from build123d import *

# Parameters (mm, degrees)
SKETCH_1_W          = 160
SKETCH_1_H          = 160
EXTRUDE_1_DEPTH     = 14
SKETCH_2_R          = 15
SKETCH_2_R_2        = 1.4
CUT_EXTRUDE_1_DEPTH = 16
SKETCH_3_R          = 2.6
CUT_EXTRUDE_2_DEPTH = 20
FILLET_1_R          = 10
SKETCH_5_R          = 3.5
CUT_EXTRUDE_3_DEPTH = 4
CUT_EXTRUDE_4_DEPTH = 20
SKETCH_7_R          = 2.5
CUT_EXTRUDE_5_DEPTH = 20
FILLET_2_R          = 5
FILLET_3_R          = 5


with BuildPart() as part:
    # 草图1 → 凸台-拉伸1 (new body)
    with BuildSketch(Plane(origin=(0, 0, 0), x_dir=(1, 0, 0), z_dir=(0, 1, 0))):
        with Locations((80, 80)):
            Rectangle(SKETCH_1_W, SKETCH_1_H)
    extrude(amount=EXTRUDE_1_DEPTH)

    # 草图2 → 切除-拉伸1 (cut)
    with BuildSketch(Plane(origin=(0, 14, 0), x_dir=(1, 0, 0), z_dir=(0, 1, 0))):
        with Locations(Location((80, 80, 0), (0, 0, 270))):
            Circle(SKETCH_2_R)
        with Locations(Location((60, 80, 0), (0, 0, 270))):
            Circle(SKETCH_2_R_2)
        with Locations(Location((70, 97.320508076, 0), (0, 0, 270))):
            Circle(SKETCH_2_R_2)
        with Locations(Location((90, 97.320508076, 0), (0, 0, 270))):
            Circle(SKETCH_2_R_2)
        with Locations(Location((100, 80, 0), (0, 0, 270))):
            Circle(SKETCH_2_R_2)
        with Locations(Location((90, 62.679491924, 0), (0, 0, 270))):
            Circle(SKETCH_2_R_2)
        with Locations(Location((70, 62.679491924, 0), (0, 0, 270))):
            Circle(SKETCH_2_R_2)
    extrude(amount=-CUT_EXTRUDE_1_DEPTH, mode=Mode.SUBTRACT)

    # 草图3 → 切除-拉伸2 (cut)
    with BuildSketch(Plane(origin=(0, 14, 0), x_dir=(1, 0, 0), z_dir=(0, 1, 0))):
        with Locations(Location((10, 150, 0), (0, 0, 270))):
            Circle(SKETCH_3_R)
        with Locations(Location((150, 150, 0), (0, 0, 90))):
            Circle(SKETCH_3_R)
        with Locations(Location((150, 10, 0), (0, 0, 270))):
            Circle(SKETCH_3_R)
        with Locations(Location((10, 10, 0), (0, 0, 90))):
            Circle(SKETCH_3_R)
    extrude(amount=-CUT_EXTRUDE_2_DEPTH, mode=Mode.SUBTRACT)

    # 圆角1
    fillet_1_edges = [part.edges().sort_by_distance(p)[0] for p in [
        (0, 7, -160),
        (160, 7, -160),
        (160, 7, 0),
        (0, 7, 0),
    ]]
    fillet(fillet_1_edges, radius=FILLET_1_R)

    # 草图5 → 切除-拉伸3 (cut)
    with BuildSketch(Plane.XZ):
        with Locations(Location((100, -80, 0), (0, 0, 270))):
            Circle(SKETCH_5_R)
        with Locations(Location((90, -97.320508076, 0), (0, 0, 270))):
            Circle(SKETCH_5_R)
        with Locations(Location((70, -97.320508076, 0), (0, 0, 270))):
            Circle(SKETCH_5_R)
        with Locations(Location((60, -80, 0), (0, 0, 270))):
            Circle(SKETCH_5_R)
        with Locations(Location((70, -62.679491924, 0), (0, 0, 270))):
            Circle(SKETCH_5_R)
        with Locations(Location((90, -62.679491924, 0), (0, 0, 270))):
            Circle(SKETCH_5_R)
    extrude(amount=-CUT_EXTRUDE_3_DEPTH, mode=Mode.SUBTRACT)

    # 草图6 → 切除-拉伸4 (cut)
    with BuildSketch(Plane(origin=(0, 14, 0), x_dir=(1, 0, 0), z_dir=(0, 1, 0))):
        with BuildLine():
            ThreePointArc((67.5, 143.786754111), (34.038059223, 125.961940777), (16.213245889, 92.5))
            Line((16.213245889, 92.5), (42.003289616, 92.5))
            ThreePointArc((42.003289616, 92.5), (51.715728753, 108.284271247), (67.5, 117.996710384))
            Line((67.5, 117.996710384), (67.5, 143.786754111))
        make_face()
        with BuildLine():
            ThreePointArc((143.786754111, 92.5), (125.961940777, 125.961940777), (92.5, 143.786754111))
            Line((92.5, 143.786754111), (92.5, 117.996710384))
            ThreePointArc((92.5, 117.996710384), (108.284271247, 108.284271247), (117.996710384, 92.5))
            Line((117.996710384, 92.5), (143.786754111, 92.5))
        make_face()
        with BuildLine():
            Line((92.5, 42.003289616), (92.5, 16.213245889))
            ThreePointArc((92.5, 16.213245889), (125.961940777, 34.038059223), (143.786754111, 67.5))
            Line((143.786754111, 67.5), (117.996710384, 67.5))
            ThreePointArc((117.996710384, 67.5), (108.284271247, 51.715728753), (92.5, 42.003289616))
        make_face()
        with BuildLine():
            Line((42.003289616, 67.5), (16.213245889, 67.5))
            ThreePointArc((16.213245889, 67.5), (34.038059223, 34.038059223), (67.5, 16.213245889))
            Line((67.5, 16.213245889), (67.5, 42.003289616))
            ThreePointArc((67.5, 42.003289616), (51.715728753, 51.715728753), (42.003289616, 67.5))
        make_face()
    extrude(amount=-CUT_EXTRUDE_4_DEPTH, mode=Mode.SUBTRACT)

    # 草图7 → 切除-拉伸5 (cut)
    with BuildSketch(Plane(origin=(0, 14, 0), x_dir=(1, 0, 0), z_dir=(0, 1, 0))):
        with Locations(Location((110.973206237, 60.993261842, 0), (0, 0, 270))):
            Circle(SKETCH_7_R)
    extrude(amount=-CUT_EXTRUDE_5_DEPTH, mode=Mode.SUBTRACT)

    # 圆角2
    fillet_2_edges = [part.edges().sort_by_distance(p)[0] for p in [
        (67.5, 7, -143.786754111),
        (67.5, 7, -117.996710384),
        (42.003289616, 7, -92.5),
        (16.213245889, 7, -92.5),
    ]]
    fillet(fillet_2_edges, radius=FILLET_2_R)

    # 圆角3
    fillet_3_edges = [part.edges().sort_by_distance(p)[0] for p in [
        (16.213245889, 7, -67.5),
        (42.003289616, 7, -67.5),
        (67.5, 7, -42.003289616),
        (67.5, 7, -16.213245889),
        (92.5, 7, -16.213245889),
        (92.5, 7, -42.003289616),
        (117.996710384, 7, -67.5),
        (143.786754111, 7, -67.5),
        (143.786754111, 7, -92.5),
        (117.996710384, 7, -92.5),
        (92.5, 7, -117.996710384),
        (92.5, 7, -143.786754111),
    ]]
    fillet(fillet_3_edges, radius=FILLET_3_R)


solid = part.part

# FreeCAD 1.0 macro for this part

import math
import FreeCAD as App
import Part
import Sketcher

V = App.Vector


def edges_at(feature, points):
    """Names of the edges that pass closest to the given points."""
    edges = feature.Shape.Edges
    near = lambda p: min(range(len(edges)), key=lambda i: edges[i].distToShape(Part.Vertex(*p))[0])
    return sorted({f"Edge{near(p) + 1}" for p in points})


def add_polygon(sketch, points):
    """Adds a closed chain of lines whose ends are joined by coincident constraints."""
    first, n = sketch.GeometryCount, len(points)
    for a, b in zip(points, points[1:] + points[:1]):
        sketch.addGeometry(Part.LineSegment(App.Vector(*a, 0), App.Vector(*b, 0)), False)
    for i in range(n):
        sketch.addConstraint(Sketcher.Constraint("Coincident", first + i, 2, first + (i + 1) % n, 1))

doc = App.newDocument("Part")
body = doc.addObject("PartDesign::Body", "Body")

# Sketch on XZ plane
sketch1 = body.newObject("Sketcher::SketchObject", "Sketch")
sketch1.AttachmentSupport = (doc.getObject("XZ_Plane"), [""])
sketch1.MapMode = "FlatFace"
add_polygon(sketch1, [(0, -160), (0, 0), (160, 0), (160, -160)])  # lines 0-3
sketch1.addConstraint([
    Sketcher.Constraint("Vertical", 0),
    Sketcher.Constraint("Horizontal", 1),
    Sketcher.Constraint("Vertical", 2),
    Sketcher.Constraint("Horizontal", 3),
    Sketcher.Constraint("Coincident", 0, 2, -1, 1),
    Sketcher.Constraint("Equal", 3, 0),
    Sketcher.Constraint("DistanceX", 1, 1, 1, 2, 160.0),
])
pad1 = body.newObject("PartDesign::Pad", "Pad")
pad1.Profile = sketch1
pad1.Length = 14
pad1.Reversed = True

# Sketch on XZ plane
sketch2 = body.newObject("Sketcher::SketchObject", "Sketch001")
sketch2.AttachmentSupport = (doc.getObject("XZ_Plane"), [""])
sketch2.MapMode = "FlatFace"
sketch2.AttachmentOffset = App.Placement(V(0, 0, -14), App.Rotation())
sketch2.addGeometry([
    Part.Circle(V(80, -80, 0), V(0, 0, 1), 15),  # 0
    Part.Circle(V(60, -80, 0), V(0, 0, 1), 1.4),  # 1
    Part.Circle(V(70, -97.3, 0), V(0, 0, 1), 1.4),  # 2
    Part.Circle(V(90, -97.3, 0), V(0, 0, 1), 1.4),  # 3
    Part.Circle(V(100, -80, 0), V(0, 0, 1), 1.4),  # 4
    Part.Circle(V(90, -62.7, 0), V(0, 0, 1), 1.4),  # 5
    Part.Circle(V(70, -62.7, 0), V(0, 0, 1), 1.4),  # 6
], False)
sketch2.addConstraint([
    Sketcher.Constraint("Equal", 1, 2),
    Sketcher.Constraint("Equal", 2, 3),
    Sketcher.Constraint("Equal", 3, 4),
    Sketcher.Constraint("Equal", 4, 5),
    Sketcher.Constraint("Equal", 5, 6),
    Sketcher.Constraint("Horizontal", 0, 3, 1, 3),
    Sketcher.Constraint("Horizontal", 2, 3, 3, 3),
    Sketcher.Constraint("Horizontal", 1, 3, 4, 3),
    Sketcher.Constraint("Horizontal", 5, 3, 6, 3),
    Sketcher.Constraint("Vertical", 3, 3, 5, 3),
    Sketcher.Constraint("Vertical", 2, 3, 6, 3),
    Sketcher.Constraint("Diameter", 0, 30.0),
    Sketcher.Constraint("Diameter", 1, 2.8),
    Sketcher.Constraint("DistanceX", -1, 1, 0, 3, 80.0),
    Sketcher.Constraint("DistanceY", 0, 3, -1, 1, 80.0),
    Sketcher.Constraint("DistanceX", -1, 1, 1, 3, 60.0),
    Sketcher.Constraint("DistanceX", -1, 1, 2, 3, 70.0),
    Sketcher.Constraint("DistanceX", -1, 1, 3, 3, 90.0),
    Sketcher.Constraint("DistanceX", -1, 1, 4, 3, 100.0),
    Sketcher.Constraint("DistanceY", 2, 3, -1, 1, 97.320508),
    Sketcher.Constraint("DistanceY", 5, 3, -1, 1, 62.679492),
])
pocket1 = body.newObject("PartDesign::Pocket", "Pocket")
pocket1.Profile = sketch2
pocket1.Length = 16
pocket1.Reversed = True

# Sketch on XZ plane
sketch3 = body.newObject("Sketcher::SketchObject", "Sketch002")
sketch3.AttachmentSupport = (doc.getObject("XZ_Plane"), [""])
sketch3.MapMode = "FlatFace"
sketch3.AttachmentOffset = App.Placement(V(0, 0, -14), App.Rotation())
sketch3.addGeometry([
    Part.Circle(V(10, -150, 0), V(0, 0, 1), 2.6),
    Part.Circle(V(150, -150, 0), V(0, 0, 1), 2.6),
    Part.Circle(V(150, -10, 0), V(0, 0, 1), 2.6),
    Part.Circle(V(10, -10, 0), V(0, 0, 1), 2.6),
], False)
sketch3.addConstraint([
    Sketcher.Constraint("Equal", 0, 1),
    Sketcher.Constraint("Equal", 1, 2),
    Sketcher.Constraint("Equal", 2, 3),
    Sketcher.Constraint("Horizontal", 0, 3, 1, 3),
    Sketcher.Constraint("Horizontal", 2, 3, 3, 3),
    Sketcher.Constraint("Vertical", 1, 3, 2, 3),
    Sketcher.Constraint("Vertical", 0, 3, 3, 3),
    Sketcher.Constraint("Diameter", 0, 5.2),
    Sketcher.Constraint("DistanceX", -1, 1, 0, 3, 10.0),
    Sketcher.Constraint("DistanceY", 0, 3, -1, 1, 150.0),
    Sketcher.Constraint("DistanceX", -1, 1, 1, 3, 150.0),
    Sketcher.Constraint("DistanceY", 2, 3, -1, 1, 10.0),
])
pocket2 = body.newObject("PartDesign::Pocket", "Pocket001")
pocket2.Profile = sketch3
pocket2.Length = 20
pocket2.Reversed = True
doc.recompute()

fillet = body.newObject("PartDesign::Fillet", "Fillet")
fillet.Base = (pocket2, edges_at(pocket2, [
    (0, 7, -160),
    (160, 7, -160),
    (160, 7, 0),
    (0, 7, 0),
]))
fillet.Radius = 10

# Sketch on XZ plane
sketch4 = body.newObject("Sketcher::SketchObject", "Sketch003")
sketch4.AttachmentSupport = (doc.getObject("XZ_Plane"), [""])
sketch4.MapMode = "FlatFace"
sketch4.addGeometry([
    Part.Circle(V(100, -80, 0), V(0, 0, 1), 3.5),  # 0
    Part.Circle(V(90, -97.3, 0), V(0, 0, 1), 3.5),  # 1
    Part.Circle(V(70, -97.3, 0), V(0, 0, 1), 3.5),  # 2
    Part.Circle(V(60, -80, 0), V(0, 0, 1), 3.5),  # 3
    Part.Circle(V(70, -62.7, 0), V(0, 0, 1), 3.5),  # 4
    Part.Circle(V(90, -62.7, 0), V(0, 0, 1), 3.5),  # 5
], False)
sketch4.addConstraint([
    Sketcher.Constraint("Equal", 0, 1),
    Sketcher.Constraint("Equal", 1, 2),
    Sketcher.Constraint("Equal", 2, 3),
    Sketcher.Constraint("Equal", 3, 4),
    Sketcher.Constraint("Equal", 4, 5),
    Sketcher.Constraint("Horizontal", 1, 3, 2, 3),
    Sketcher.Constraint("Horizontal", 0, 3, 3, 3),
    Sketcher.Constraint("Horizontal", 4, 3, 5, 3),
    Sketcher.Constraint("Vertical", 2, 3, 4, 3),
    Sketcher.Constraint("Vertical", 1, 3, 5, 3),
    Sketcher.Constraint("Diameter", 0, 7.0),
    Sketcher.Constraint("DistanceX", -1, 1, 0, 3, 100.0),
    Sketcher.Constraint("DistanceY", 0, 3, -1, 1, 80.0),
    Sketcher.Constraint("DistanceX", -1, 1, 1, 3, 90.0),
    Sketcher.Constraint("DistanceX", -1, 1, 2, 3, 70.0),
    Sketcher.Constraint("DistanceX", -1, 1, 3, 3, 60.0),
    Sketcher.Constraint("DistanceY", 1, 3, -1, 1, 97.320508),
    Sketcher.Constraint("DistanceY", 4, 3, -1, 1, 62.679492),
])
pocket3 = body.newObject("PartDesign::Pocket", "Pocket002")
pocket3.Profile = sketch4
pocket3.Length = 4

# Sketch on XZ plane
sketch5 = body.newObject("Sketcher::SketchObject", "Sketch004")
sketch5.AttachmentSupport = (doc.getObject("XZ_Plane"), [""])
sketch5.MapMode = "FlatFace"
sketch5.AttachmentOffset = App.Placement(V(0, 0, -14), App.Rotation())
sketch5.addGeometry([
    Part.ArcOfCircle(Part.Circle(V(80, -80, 0), V(0, 0, 1), 65), math.radians(-169), math.radians(-101)),  # 0
    Part.LineSegment(V(16, -92, 0), V(42, -92, 0)),  # 1
    Part.ArcOfCircle(Part.Circle(V(80, -80, 0), V(0, 0, 1), 40), math.radians(-162), math.radians(-108)),  # 2
    Part.LineSegment(V(68, -118, 0), V(68, -144, 0)),  # 3
    Part.ArcOfCircle(Part.Circle(V(80, -80, 0), V(0, 0, 1), 65), math.radians(-79), math.radians(-11)),  # 4
    Part.LineSegment(V(92, -144, 0), V(92, -118, 0)),  # 5
    Part.ArcOfCircle(Part.Circle(V(80, -80, 0), V(0, 0, 1), 40), math.radians(-72), math.radians(-18)),  # 6
    Part.LineSegment(V(118, -92, 0), V(144, -92, 0)),  # 7
    Part.LineSegment(V(92, -42, 0), V(92, -16, 0)),  # 8
    Part.ArcOfCircle(Part.Circle(V(80, -80, 0), V(0, 0, 1), 65), math.radians(11), math.radians(79)),  # 9
    Part.LineSegment(V(144, -68, 0), V(118, -68, 0)),  # 10
    Part.ArcOfCircle(Part.Circle(V(80, -80, 0), V(0, 0, 1), 40), math.radians(18), math.radians(72)),  # 11
    Part.LineSegment(V(42, -68, 0), V(16, -68, 0)),  # 12
    Part.ArcOfCircle(Part.Circle(V(80, -80, 0), V(0, 0, 1), 65), math.radians(101), math.radians(169)),  # 13
    Part.LineSegment(V(68, -16, 0), V(68, -42, 0)),  # 14
    Part.ArcOfCircle(Part.Circle(V(80, -80, 0), V(0, 0, 1), 40), math.radians(108), math.radians(162)),  # 15
], False)
sketch5.addConstraint([
    Sketcher.Constraint("Coincident", 0, 1, 1, 1),
    Sketcher.Constraint("Coincident", 1, 2, 2, 1),
    Sketcher.Constraint("Coincident", 2, 2, 3, 1),
    Sketcher.Constraint("Coincident", 3, 2, 0, 2),
    Sketcher.Constraint("Coincident", 4, 1, 5, 1),
    Sketcher.Constraint("Coincident", 5, 2, 6, 1),
    Sketcher.Constraint("Coincident", 6, 2, 7, 1),
    Sketcher.Constraint("Coincident", 7, 2, 4, 2),
    Sketcher.Constraint("Coincident", 8, 2, 9, 2),
    Sketcher.Constraint("Coincident", 9, 1, 10, 1),
    Sketcher.Constraint("Coincident", 10, 2, 11, 1),
    Sketcher.Constraint("Coincident", 11, 2, 8, 1),
    Sketcher.Constraint("Coincident", 12, 2, 13, 2),
    Sketcher.Constraint("Coincident", 13, 1, 14, 1),
    Sketcher.Constraint("Coincident", 14, 2, 15, 1),
    Sketcher.Constraint("Coincident", 15, 2, 12, 1),
    Sketcher.Constraint("Horizontal", 1),
    Sketcher.Constraint("Vertical", 3),
    Sketcher.Constraint("Vertical", 5),
    Sketcher.Constraint("Horizontal", 7),
    Sketcher.Constraint("Vertical", 8),
    Sketcher.Constraint("Horizontal", 10),
    Sketcher.Constraint("Horizontal", 12),
    Sketcher.Constraint("Vertical", 14),
    Sketcher.Constraint("Coincident", 2, 3, 0, 3),
    Sketcher.Constraint("Coincident", 4, 3, 0, 3),
    Sketcher.Constraint("Coincident", 6, 3, 0, 3),
    Sketcher.Constraint("Coincident", 9, 3, 0, 3),
    Sketcher.Constraint("Coincident", 11, 3, 0, 3),
    Sketcher.Constraint("Coincident", 13, 3, 0, 3),
    Sketcher.Constraint("Coincident", 15, 3, 0, 3),
    Sketcher.Constraint("Equal", 0, 4),
    Sketcher.Constraint("Equal", 2, 6),
    Sketcher.Constraint("Equal", 4, 9),
    Sketcher.Constraint("Equal", 6, 11),
    Sketcher.Constraint("Equal", 9, 13),
    Sketcher.Constraint("Equal", 11, 15),
    Sketcher.Constraint("Horizontal", 3, 2, 4, 1),
    Sketcher.Constraint("Horizontal", 1, 2, 6, 2),
    Sketcher.Constraint("Horizontal", 10, 2, 12, 2),
    Sketcher.Constraint("Horizontal", 8, 2, 13, 1),
    Sketcher.Constraint("Vertical", 5, 2, 8, 2),
    Sketcher.Constraint("Vertical", 7, 2, 9, 1),
    Sketcher.Constraint("Equal", 12, 3),
    Sketcher.Constraint("Radius", 0, 65.0),
    Sketcher.Constraint("Radius", 2, 40.0),
    Sketcher.Constraint("DistanceX", -1, 1, 0, 3, 80.0),
    Sketcher.Constraint("DistanceY", 0, 3, -1, 1, 80.0),
    Sketcher.Constraint("DistanceX", 3, 2, 4, 1, 25.0),
])
pocket4 = body.newObject("PartDesign::Pocket", "Pocket003")
pocket4.Profile = sketch5
pocket4.Length = 20
pocket4.Reversed = True

# Sketch on XZ plane
sketch6 = body.newObject("Sketcher::SketchObject", "Sketch005")
sketch6.AttachmentSupport = (doc.getObject("XZ_Plane"), [""])
sketch6.MapMode = "FlatFace"
sketch6.AttachmentOffset = App.Placement(V(0, 0, -14), App.Rotation())
sketch6.addGeometry(Part.Circle(V(111, -61, 0), V(0, 0, 1), 2.5), False)
sketch6.addConstraint([
    Sketcher.Constraint("Diameter", 0, 5.0),
    Sketcher.Constraint("DistanceY", 0, 3, -1, 1, 60.993262),
    Sketcher.Constraint("DistanceX", -1, 1, 0, 3, 110.973206),
])
pocket5 = body.newObject("PartDesign::Pocket", "Pocket004")
pocket5.Profile = sketch6
pocket5.Length = 20
pocket5.Reversed = True
doc.recompute()

fillet2 = body.newObject("PartDesign::Fillet", "Fillet001")
fillet2.Base = (pocket5, edges_at(pocket5, [
    (67.5, 7, -143.787),
    (67.5, 7, -117.997),
    (42.003, 7, -92.5),
    (16.213, 7, -92.5),
]))
fillet2.Radius = 5
doc.recompute()

fillet3 = body.newObject("PartDesign::Fillet", "Fillet002")
fillet3.Base = (fillet2, edges_at(fillet2, [
    (16.213, 7, -67.5),
    (42.003, 7, -67.5),
    (67.5, 7, -42.003),
    (67.5, 7, -16.213),
    (92.5, 7, -16.213),
    (92.5, 7, -42.003),
    (117.997, 7, -67.5),
    (143.787, 7, -67.5),
    (143.787, 7, -92.5),
    (117.997, 7, -92.5),
    (92.5, 7, -117.997),
    (92.5, 7, -143.787),
]))
fillet3.Radius = 5

doc.recompute()
